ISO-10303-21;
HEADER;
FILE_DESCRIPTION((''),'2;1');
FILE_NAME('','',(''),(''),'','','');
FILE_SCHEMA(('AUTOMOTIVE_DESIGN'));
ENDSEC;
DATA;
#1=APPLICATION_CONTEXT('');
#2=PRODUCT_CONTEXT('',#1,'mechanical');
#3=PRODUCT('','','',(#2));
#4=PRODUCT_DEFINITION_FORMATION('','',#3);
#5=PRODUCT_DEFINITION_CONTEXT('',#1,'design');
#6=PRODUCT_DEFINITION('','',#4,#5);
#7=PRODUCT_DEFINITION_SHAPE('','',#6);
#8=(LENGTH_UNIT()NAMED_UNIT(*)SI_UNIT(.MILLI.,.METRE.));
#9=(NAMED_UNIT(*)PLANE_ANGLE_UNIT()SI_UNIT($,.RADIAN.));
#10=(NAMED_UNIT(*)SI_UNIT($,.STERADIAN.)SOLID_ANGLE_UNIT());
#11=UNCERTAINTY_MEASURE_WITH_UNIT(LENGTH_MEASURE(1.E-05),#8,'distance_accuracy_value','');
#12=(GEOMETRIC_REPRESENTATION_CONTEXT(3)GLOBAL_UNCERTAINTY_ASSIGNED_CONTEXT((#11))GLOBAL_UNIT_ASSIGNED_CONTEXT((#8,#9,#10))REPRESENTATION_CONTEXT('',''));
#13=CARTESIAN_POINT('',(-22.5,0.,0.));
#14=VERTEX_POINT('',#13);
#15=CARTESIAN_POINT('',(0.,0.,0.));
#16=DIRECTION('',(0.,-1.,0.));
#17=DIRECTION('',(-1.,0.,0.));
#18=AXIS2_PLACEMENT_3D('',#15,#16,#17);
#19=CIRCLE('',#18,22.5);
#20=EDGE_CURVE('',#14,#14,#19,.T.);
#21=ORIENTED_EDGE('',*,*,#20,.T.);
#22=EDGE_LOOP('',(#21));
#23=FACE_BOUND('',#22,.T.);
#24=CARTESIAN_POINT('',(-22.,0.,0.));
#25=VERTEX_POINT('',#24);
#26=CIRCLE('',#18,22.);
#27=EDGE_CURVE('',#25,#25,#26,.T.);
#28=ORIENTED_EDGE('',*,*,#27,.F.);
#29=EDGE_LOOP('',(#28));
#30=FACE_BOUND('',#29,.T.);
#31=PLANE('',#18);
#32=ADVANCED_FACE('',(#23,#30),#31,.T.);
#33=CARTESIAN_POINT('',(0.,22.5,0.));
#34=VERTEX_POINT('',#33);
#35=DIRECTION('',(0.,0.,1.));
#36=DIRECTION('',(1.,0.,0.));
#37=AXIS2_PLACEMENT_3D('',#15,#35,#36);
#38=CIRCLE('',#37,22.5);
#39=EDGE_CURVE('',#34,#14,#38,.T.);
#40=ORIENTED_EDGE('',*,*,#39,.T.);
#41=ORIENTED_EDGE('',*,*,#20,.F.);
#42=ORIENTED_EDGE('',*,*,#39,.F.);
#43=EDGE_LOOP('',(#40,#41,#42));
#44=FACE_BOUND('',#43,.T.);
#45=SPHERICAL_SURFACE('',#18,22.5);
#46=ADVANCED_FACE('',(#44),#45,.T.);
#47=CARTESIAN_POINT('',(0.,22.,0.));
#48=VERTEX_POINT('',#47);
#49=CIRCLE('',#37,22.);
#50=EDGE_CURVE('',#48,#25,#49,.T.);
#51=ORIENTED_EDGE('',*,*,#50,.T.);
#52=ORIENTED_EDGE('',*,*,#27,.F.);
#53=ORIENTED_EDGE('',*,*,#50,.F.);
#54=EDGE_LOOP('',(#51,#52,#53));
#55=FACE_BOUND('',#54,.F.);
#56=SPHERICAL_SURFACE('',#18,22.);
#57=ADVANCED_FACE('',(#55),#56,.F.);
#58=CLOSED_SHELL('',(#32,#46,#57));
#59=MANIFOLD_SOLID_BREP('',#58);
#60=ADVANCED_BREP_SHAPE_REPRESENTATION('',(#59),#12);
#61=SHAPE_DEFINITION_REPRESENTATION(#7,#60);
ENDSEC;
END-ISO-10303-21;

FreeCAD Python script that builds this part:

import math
import FreeCAD as App
import Part
import Sketcher

V = App.Vector

doc = App.newDocument("Part")
body = doc.addObject("PartDesign::Body", "Body")

sketch1 = body.newObject("Sketcher::SketchObject", "Sketch")
sketch1.AttachmentSupport = (doc.getObject("XY_Plane"), [""])
sketch1.MapMode = "FlatFace"
sketch1.addGeometry(Part.LineSegment(V(0, 22, 0), V(0, 22.5, 0)), False)
sketch1.addGeometry(Part.ArcOfCircle(Part.Circle(V(0, 0, 0), V(0, 0, 1), 22.5), math.radians(90), math.radians(180)), False)
sketch1.addGeometry(Part.LineSegment(V(-22.5, 0, 0), V(-22, 0, 0)), False)
sketch1.addGeometry(Part.ArcOfCircle(Part.Circle(V(0, 0, 0), V(0, 0, 1), 22), math.radians(90), math.radians(180)), False)
sketch1.addConstraint(Sketcher.Constraint("Coincident", 0, 2, 1, 1))
sketch1.addConstraint(Sketcher.Constraint("Coincident", 1, 2, 2, 1))
sketch1.addConstraint(Sketcher.Constraint("Coincident", 2, 2, 3, 2))
sketch1.addConstraint(Sketcher.Constraint("Coincident", 3, 1, 0, 1))
sketch1.addConstraint(Sketcher.Constraint("Vertical", 0))
sketch1.addConstraint(Sketcher.Constraint("Horizontal", 2))
sketch1.addConstraint(Sketcher.Constraint("Coincident", 1, 3, -1, 1))
sketch1.addConstraint(Sketcher.Constraint("Coincident", 3, 3, -1, 1))
sketch1.addConstraint(Sketcher.Constraint("PointOnObject", 0, 2, -2))
sketch1.addConstraint(Sketcher.Constraint("PointOnObject", 1, 2, -1))
sketch1.addConstraint(Sketcher.Constraint("Radius", 3, 22.0))
sketch1.addConstraint(Sketcher.Constraint("Radius", 1, 22.5))
revolution = body.newObject("PartDesign::Revolution", "Revolution")
revolution.Profile = sketch1
revolution.ReferenceAxis = (sketch1, ["V_Axis"])
revolution.Angle = 360

doc.recompute()
